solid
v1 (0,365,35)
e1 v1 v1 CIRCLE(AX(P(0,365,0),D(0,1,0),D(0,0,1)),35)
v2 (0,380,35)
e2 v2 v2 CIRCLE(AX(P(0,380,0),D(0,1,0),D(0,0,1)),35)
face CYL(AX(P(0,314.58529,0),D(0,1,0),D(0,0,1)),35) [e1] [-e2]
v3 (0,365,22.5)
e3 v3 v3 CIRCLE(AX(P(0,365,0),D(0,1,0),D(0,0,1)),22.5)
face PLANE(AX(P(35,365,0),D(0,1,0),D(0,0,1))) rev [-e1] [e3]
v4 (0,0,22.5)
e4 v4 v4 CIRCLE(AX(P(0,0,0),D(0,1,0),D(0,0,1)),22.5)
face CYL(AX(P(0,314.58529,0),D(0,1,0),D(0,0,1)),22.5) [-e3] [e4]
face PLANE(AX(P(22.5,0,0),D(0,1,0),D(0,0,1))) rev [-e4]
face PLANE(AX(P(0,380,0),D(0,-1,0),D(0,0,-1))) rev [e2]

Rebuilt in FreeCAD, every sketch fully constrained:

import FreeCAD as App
import Part
import Sketcher

V = App.Vector

doc = App.newDocument("Part")
body = doc.addObject("PartDesign::Body", "Body")

# Sketch on XY plane
sketch1 = doc.addObject("Sketcher::SketchObject", "Sketch")
body.addObject(sketch1)
sketch1.AttachmentSupport = (doc.XY_Plane, [""])
sketch1.MapMode = "FlatFace"
sketch1.addGeometry(Part.LineSegment(V(0, 0, 0), V(22.5, 0, 0)), False)
sketch1.addGeometry(Part.LineSegment(V(22.5, 0, 0), V(22.5, 365, 0)), False)
sketch1.addGeometry(Part.LineSegment(V(22.5, 365, 0), V(35, 365, 0)), False)
sketch1.addGeometry(Part.LineSegment(V(35, 365, 0), V(35, 380, 0)), False)
sketch1.addGeometry(Part.LineSegment(V(35, 380, 0), V(0, 380, 0)), False)
sketch1.addGeometry(Part.LineSegment(V(0, 380, 0), V(0, 0, 0)), False)
sketch1.addConstraint(Sketcher.Constraint("Coincident", 0, 2, 1, 1))
sketch1.addConstraint(Sketcher.Constraint("Coincident", 1, 2, 2, 1))
sketch1.addConstraint(Sketcher.Constraint("Coincident", 2, 2, 3, 1))
sketch1.addConstraint(Sketcher.Constraint("Coincident", 3, 2, 4, 1))
sketch1.addConstraint(Sketcher.Constraint("Coincident", 4, 2, 5, 1))
sketch1.addConstraint(Sketcher.Constraint("Coincident", 5, 2, 0, 1))
sketch1.addConstraint(Sketcher.Constraint("Horizontal", 0))
sketch1.addConstraint(Sketcher.Constraint("Vertical", 1))
sketch1.addConstraint(Sketcher.Constraint("Horizontal", 2))
sketch1.addConstraint(Sketcher.Constraint("Vertical", 3))
sketch1.addConstraint(Sketcher.Constraint("Horizontal", 4))
sketch1.addConstraint(Sketcher.Constraint("Vertical", 5))
sketch1.addConstraint(Sketcher.Constraint("Coincident", 5, 2, -1, 1))
sketch1.addConstraint(Sketcher.Constraint("DistanceX", 4, 2, 4, 1, 35.0))
sketch1.addConstraint(Sketcher.Constraint("DistanceY", 1, 1, 1, 2, 365.0))
sketch1.addConstraint(Sketcher.Constraint("DistanceY", 3, 1, 3, 2, 15.0))
sketch1.addConstraint(Sketcher.Constraint("DistanceX", 0, 1, 0, 2, 22.5))
revolution = doc.addObject("PartDesign::Revolution", "Revolution")
body.addObject(revolution)
revolution.Profile = sketch1
revolution.ReferenceAxis = (sketch1, ["V_Axis"])
revolution.Angle = 360

doc.recompute()
